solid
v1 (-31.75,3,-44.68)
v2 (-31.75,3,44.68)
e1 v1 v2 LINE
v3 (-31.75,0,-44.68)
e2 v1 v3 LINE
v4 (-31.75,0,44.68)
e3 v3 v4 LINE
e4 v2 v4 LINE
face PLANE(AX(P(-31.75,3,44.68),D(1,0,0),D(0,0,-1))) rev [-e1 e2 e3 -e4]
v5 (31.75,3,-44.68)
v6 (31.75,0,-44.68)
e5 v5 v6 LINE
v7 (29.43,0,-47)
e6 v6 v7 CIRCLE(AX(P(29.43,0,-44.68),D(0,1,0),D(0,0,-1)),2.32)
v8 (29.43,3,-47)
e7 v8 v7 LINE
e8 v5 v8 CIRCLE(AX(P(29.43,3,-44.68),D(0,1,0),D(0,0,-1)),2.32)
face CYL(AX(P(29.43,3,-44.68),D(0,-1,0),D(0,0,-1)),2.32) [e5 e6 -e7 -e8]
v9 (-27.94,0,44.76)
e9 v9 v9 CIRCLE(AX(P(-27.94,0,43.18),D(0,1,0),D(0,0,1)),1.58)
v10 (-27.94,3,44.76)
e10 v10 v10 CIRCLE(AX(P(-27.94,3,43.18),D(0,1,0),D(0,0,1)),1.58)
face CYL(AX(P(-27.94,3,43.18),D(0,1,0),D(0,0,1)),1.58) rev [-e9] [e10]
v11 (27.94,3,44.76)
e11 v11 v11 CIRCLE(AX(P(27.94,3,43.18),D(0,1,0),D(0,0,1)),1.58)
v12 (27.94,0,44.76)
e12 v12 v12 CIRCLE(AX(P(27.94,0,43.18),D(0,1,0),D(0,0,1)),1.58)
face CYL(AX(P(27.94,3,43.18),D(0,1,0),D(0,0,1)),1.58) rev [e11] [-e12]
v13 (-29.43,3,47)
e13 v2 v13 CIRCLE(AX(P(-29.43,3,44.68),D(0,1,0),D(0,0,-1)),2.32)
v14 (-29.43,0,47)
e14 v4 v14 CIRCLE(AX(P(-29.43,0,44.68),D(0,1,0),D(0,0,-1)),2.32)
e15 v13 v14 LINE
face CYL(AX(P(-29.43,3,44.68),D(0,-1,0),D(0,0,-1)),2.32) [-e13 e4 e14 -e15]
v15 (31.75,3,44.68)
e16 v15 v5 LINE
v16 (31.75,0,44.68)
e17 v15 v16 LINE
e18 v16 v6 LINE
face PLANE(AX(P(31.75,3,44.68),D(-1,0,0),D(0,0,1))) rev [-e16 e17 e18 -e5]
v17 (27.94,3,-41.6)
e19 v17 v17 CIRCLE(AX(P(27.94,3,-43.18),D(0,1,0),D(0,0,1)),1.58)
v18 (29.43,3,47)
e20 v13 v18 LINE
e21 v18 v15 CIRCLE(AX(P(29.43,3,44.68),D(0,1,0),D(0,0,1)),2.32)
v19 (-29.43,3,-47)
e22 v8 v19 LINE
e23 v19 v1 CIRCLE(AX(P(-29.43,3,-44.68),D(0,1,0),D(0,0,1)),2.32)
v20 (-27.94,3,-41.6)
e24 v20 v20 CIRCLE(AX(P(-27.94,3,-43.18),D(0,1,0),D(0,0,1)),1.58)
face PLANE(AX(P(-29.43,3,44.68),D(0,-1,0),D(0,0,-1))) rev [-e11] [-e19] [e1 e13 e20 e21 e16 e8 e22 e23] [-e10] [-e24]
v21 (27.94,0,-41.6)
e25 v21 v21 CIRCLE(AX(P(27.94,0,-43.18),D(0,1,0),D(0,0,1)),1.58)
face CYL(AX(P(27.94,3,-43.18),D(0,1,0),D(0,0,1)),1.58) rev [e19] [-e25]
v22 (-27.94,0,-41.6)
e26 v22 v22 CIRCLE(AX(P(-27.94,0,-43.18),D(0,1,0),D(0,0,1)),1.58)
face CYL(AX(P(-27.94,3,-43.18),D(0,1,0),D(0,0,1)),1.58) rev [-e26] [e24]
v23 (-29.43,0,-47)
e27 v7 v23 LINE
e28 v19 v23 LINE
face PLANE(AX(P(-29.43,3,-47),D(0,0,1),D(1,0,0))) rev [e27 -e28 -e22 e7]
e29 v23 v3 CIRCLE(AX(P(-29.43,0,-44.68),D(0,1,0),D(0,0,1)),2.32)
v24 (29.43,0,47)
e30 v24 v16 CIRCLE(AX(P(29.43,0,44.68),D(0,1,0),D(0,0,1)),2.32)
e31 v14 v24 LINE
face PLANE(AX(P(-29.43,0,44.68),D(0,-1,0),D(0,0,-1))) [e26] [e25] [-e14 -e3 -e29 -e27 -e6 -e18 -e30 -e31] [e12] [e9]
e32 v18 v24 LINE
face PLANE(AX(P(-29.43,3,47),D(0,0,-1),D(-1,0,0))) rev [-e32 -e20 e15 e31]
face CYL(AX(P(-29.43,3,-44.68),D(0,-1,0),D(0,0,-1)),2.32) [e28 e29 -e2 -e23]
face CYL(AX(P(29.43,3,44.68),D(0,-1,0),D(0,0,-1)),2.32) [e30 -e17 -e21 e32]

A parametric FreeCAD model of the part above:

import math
import FreeCAD as App
import Part
import Sketcher
from FreeCAD import Vector
Q = App.Units.Quantity

doc = App.newDocument("Part")
body = doc.addObject("PartDesign::Body", "Body")

sketch1 = body.newObject("Sketcher::SketchObject", "Sketch")
sketch1.AttachmentSupport = (doc.getObject("XZ_Plane"), [""])
sketch1.MapMode = "FlatFace"
sketch1.addGeometry(Part.LineSegment(Vector(-29.4, 47, 0), Vector(29.4, 47, 0)), False)
sketch1.addGeometry(Part.ArcOfCircle(Part.Circle(Vector(29.4, 44.7, 0), Vector(0, 0, 1), 2.3), math.radians(0), math.radians(90)), False)
sketch1.addGeometry(Part.LineSegment(Vector(31.8, 44.7, 0), Vector(31.8, -44.7, 0)), False)
sketch1.addGeometry(Part.ArcOfCircle(Part.Circle(Vector(29.4, -44.7, 0), Vector(0, 0, 1), 2.3), math.radians(-90), math.radians(0)), False)
sketch1.addGeometry(Part.LineSegment(Vector(29.4, -47, 0), Vector(-29.4, -47, 0)), False)
sketch1.addGeometry(Part.ArcOfCircle(Part.Circle(Vector(-29.4, -44.7, 0), Vector(0, 0, 1), 2.3), math.radians(-180), math.radians(-90)), False)
sketch1.addGeometry(Part.LineSegment(Vector(-31.8, -44.7, 0), Vector(-31.8, 44.7, 0)), False)
sketch1.addGeometry(Part.ArcOfCircle(Part.Circle(Vector(-29.4, 44.7, 0), Vector(0, 0, 1), 2.3), math.radians(90), math.radians(180)), False)
sketch1.addConstraint(Sketcher.Constraint("Tangent", 0, 2, 1, 2))
sketch1.addConstraint(Sketcher.Constraint("Tangent", 1, 1, 2, 1))
sketch1.addConstraint(Sketcher.Constraint("Tangent", 2, 2, 3, 2))
sketch1.addConstraint(Sketcher.Constraint("Tangent", 3, 1, 4, 1))
sketch1.addConstraint(Sketcher.Constraint("Tangent", 4, 2, 5, 2))
sketch1.addConstraint(Sketcher.Constraint("Tangent", 5, 1, 6, 1))
sketch1.addConstraint(Sketcher.Constraint("Tangent", 6, 2, 7, 2))
sketch1.addConstraint(Sketcher.Constraint("Tangent", 7, 1, 0, 1))
sketch1.addConstraint(Sketcher.Constraint("Horizontal", 0))
sketch1.addConstraint(Sketcher.Constraint("Vertical", 2))
sketch1.addConstraint(Sketcher.Constraint("Horizontal", 4))
sketch1.addConstraint(Sketcher.Constraint("Vertical", 6))
sketch1.addConstraint(Sketcher.Constraint("Equal", 1, 3))
sketch1.addConstraint(Sketcher.Constraint("Equal", 3, 5))
sketch1.addConstraint(Sketcher.Constraint("Equal", 5, 7))
sketch1.addConstraint(Sketcher.Constraint("Symmetric", 1, 3, 5, 3, -1, 1))
sketch1.addConstraint(Sketcher.Constraint("Radius", 1, Q("2.32 mm")))
sketch1.addConstraint(Sketcher.Constraint("DistanceY", -1, 1, 0, 2, Q("47 mm")))
sketch1.addConstraint(Sketcher.Constraint("DistanceX", 0, 1, 0, 2, Q("58.86 mm")))
pad1 = body.newObject("PartDesign::Pad", "Pad")
pad1.Profile = sketch1
pad1.Length = 3
pad1.Reversed = True

sketch2 = body.newObject("Sketcher::SketchObject", "Sketch001")
sketch2.AttachmentSupport = (doc.getObject("XZ_Plane"), [""])
sketch2.MapMode = "FlatFace"
sketch2.AttachmentOffset = App.Placement(Vector(0, 0, -3), App.Rotation())
sketch2.addGeometry(Part.Circle(Vector(27.9, -43.2, 0), Vector(0, 0, 1), 1.6), False)
sketch2.addGeometry(Part.Circle(Vector(-27.9, -43.2, 0), Vector(0, 0, 1), 1.6), False)
sketch2.addGeometry(Part.Circle(Vector(-27.9, 43.2, 0), Vector(0, 0, 1), 1.6), False)
sketch2.addGeometry(Part.Circle(Vector(27.9, 43.2, 0), Vector(0, 0, 1), 1.6), False)
sketch2.addConstraint(Sketcher.Constraint("Equal", 0, 1))
sketch2.addConstraint(Sketcher.Constraint("Equal", 1, 2))
sketch2.addConstraint(Sketcher.Constraint("Equal", 2, 3))
sketch2.addConstraint(Sketcher.Constraint("Symmetric", 0, 3, 2, 3, -1, 1))
sketch2.addConstraint(Sketcher.Constraint("Symmetric", 1, 3, 3, 3, -1, 1))
sketch2.addConstraint(Sketcher.Constraint("Symmetric", 0, 3, 1, 3, -2))
sketch2.addConstraint(Sketcher.Constraint("Diameter", 0, Q("3.16 mm")))
sketch2.addConstraint(Sketcher.Constraint("DistanceX", -1, 1, 0, 3, Q("27.94 mm")))
sketch2.addConstraint(Sketcher.Constraint("DistanceY", 0, 3, -1, 1, Q("43.18 mm")))
doc.recompute()
hole = body.newObject("PartDesign::Hole", "Hole")
hole.Profile = sketch2
hole.ThreadType = "None"
hole.Diameter = 3.16
hole.DepthType = "ThroughAll"
hole.Reversed = True

doc.recompute()
